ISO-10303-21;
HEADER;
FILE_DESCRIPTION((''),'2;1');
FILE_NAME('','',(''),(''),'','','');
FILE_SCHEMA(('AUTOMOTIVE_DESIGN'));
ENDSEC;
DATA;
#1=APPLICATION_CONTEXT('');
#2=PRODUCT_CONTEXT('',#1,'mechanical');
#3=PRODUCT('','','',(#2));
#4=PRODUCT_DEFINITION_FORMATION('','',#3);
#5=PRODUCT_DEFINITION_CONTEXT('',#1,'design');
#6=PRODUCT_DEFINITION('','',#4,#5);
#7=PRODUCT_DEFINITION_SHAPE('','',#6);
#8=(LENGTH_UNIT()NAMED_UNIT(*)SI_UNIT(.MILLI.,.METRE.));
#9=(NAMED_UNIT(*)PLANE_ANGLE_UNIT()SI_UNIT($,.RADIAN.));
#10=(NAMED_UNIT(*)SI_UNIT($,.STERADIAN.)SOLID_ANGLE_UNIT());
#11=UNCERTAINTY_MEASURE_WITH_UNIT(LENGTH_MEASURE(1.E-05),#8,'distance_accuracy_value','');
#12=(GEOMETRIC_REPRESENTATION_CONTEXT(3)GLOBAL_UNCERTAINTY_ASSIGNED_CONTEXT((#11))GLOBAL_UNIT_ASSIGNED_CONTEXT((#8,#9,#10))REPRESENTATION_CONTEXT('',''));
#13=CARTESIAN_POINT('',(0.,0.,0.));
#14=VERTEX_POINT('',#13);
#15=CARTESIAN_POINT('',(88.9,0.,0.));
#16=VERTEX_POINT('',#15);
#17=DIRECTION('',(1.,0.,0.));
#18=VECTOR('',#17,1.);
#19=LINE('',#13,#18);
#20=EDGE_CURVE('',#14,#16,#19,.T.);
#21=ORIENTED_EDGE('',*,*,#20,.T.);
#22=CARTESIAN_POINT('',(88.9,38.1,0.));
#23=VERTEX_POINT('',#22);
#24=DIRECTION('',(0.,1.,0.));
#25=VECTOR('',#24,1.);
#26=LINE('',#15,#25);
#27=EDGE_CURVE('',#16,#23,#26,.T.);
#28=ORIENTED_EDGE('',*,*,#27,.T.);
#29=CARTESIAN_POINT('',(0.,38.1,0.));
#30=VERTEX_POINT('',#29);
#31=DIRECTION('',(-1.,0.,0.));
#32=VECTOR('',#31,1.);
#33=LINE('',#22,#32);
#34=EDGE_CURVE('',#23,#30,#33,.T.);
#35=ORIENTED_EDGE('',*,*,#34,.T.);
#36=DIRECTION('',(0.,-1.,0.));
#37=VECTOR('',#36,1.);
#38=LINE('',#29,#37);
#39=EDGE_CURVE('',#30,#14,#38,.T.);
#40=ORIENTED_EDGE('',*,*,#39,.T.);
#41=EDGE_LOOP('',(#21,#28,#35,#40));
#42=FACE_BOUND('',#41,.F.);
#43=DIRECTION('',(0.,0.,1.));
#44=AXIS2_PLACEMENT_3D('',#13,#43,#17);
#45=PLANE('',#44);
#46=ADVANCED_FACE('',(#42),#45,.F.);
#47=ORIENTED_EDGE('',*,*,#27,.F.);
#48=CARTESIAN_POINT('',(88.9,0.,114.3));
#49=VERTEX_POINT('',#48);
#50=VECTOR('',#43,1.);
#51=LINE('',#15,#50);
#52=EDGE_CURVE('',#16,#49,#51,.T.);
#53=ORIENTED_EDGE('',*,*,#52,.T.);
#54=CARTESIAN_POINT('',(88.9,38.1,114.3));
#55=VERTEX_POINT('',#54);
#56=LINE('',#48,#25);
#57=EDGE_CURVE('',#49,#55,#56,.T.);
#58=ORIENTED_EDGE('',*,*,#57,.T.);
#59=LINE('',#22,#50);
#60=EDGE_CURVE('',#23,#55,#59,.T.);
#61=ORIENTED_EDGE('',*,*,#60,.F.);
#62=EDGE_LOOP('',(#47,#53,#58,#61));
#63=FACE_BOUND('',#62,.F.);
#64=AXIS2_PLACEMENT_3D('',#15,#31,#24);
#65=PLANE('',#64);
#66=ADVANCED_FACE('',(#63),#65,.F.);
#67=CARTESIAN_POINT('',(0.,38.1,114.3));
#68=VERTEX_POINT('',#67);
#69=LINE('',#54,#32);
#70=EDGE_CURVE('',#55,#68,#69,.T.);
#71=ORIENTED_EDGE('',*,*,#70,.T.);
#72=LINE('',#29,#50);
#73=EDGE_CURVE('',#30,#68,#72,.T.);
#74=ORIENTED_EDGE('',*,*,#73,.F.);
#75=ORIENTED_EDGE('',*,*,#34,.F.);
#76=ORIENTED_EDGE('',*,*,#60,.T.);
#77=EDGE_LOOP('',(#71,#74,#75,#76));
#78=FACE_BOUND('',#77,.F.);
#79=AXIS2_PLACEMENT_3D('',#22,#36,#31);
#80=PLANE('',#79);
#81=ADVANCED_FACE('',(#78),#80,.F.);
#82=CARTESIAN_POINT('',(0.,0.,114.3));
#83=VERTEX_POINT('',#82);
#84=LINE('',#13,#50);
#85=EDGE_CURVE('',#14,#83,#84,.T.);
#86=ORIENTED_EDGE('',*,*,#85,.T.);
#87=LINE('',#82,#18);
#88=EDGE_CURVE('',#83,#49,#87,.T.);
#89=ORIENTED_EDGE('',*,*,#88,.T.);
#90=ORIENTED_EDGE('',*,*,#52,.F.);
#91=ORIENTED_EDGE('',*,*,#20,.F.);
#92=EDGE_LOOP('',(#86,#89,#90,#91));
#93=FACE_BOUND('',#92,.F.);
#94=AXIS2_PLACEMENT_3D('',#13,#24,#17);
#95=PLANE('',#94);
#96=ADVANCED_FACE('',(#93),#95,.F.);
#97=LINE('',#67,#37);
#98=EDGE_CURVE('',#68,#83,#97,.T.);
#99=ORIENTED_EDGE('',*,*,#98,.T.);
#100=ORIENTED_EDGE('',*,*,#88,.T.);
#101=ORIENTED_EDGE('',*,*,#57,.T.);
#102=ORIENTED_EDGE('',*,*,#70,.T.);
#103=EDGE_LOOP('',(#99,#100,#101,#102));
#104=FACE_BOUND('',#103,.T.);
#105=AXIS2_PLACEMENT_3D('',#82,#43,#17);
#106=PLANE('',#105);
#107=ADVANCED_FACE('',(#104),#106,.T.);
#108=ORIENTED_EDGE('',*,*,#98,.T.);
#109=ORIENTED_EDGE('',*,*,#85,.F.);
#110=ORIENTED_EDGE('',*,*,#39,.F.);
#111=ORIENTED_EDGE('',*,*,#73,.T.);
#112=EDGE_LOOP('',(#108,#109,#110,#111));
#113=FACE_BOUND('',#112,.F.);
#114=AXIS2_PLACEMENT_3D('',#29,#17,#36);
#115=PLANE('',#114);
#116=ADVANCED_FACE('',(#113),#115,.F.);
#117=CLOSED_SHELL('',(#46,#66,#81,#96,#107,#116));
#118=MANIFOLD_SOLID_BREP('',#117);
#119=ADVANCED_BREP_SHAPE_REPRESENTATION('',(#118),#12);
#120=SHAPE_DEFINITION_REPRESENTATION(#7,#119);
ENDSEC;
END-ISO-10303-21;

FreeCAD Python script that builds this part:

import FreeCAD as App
import Part
import Sketcher
from FreeCAD import Vector
Q = App.Units.Quantity

doc = App.newDocument("Part")
body = doc.addObject("PartDesign::Body", "Body")

# Sketch on XY plane
sketch1 = body.newObject("Sketcher::SketchObject", "Sketch")
sketch1.AttachmentSupport = (doc.getObject("XY_Plane"), [""])
sketch1.MapMode = "FlatFace"
sketch1.addGeometry(Part.LineSegment(Vector(0, 38.1, 0), Vector(0, 0, 0)), False)
sketch1.addGeometry(Part.LineSegment(Vector(0, 0, 0), Vector(88.9, 0, 0)), False)
sketch1.addGeometry(Part.LineSegment(Vector(88.9, 0, 0), Vector(88.9, 38.1, 0)), False)
sketch1.addGeometry(Part.LineSegment(Vector(88.9, 38.1, 0), Vector(0, 38.1, 0)), False)
sketch1.addConstraint(Sketcher.Constraint("Coincident", 0, 2, 1, 1))
sketch1.addConstraint(Sketcher.Constraint("Coincident", 1, 2, 2, 1))
sketch1.addConstraint(Sketcher.Constraint("Coincident", 2, 2, 3, 1))
sketch1.addConstraint(Sketcher.Constraint("Coincident", 3, 2, 0, 1))
sketch1.addConstraint(Sketcher.Constraint("Vertical", 0))
sketch1.addConstraint(Sketcher.Constraint("Horizontal", 1))
sketch1.addConstraint(Sketcher.Constraint("Vertical", 2))
sketch1.addConstraint(Sketcher.Constraint("Horizontal", 3))
sketch1.addConstraint(Sketcher.Constraint("Coincident", 0, 2, -1, 1))
sketch1.addConstraint(Sketcher.Constraint("DistanceX", 1, 1, 1, 2, Q("3.5 in")))
sketch1.addConstraint(Sketcher.Constraint("DistanceY", 0, 2, 0, 1, Q("1.5 in")))
pad1 = body.newObject("PartDesign::Pad", "Pad")
pad1.Profile = sketch1
pad1.Length = Q("4.5 in")

doc.recompute()
